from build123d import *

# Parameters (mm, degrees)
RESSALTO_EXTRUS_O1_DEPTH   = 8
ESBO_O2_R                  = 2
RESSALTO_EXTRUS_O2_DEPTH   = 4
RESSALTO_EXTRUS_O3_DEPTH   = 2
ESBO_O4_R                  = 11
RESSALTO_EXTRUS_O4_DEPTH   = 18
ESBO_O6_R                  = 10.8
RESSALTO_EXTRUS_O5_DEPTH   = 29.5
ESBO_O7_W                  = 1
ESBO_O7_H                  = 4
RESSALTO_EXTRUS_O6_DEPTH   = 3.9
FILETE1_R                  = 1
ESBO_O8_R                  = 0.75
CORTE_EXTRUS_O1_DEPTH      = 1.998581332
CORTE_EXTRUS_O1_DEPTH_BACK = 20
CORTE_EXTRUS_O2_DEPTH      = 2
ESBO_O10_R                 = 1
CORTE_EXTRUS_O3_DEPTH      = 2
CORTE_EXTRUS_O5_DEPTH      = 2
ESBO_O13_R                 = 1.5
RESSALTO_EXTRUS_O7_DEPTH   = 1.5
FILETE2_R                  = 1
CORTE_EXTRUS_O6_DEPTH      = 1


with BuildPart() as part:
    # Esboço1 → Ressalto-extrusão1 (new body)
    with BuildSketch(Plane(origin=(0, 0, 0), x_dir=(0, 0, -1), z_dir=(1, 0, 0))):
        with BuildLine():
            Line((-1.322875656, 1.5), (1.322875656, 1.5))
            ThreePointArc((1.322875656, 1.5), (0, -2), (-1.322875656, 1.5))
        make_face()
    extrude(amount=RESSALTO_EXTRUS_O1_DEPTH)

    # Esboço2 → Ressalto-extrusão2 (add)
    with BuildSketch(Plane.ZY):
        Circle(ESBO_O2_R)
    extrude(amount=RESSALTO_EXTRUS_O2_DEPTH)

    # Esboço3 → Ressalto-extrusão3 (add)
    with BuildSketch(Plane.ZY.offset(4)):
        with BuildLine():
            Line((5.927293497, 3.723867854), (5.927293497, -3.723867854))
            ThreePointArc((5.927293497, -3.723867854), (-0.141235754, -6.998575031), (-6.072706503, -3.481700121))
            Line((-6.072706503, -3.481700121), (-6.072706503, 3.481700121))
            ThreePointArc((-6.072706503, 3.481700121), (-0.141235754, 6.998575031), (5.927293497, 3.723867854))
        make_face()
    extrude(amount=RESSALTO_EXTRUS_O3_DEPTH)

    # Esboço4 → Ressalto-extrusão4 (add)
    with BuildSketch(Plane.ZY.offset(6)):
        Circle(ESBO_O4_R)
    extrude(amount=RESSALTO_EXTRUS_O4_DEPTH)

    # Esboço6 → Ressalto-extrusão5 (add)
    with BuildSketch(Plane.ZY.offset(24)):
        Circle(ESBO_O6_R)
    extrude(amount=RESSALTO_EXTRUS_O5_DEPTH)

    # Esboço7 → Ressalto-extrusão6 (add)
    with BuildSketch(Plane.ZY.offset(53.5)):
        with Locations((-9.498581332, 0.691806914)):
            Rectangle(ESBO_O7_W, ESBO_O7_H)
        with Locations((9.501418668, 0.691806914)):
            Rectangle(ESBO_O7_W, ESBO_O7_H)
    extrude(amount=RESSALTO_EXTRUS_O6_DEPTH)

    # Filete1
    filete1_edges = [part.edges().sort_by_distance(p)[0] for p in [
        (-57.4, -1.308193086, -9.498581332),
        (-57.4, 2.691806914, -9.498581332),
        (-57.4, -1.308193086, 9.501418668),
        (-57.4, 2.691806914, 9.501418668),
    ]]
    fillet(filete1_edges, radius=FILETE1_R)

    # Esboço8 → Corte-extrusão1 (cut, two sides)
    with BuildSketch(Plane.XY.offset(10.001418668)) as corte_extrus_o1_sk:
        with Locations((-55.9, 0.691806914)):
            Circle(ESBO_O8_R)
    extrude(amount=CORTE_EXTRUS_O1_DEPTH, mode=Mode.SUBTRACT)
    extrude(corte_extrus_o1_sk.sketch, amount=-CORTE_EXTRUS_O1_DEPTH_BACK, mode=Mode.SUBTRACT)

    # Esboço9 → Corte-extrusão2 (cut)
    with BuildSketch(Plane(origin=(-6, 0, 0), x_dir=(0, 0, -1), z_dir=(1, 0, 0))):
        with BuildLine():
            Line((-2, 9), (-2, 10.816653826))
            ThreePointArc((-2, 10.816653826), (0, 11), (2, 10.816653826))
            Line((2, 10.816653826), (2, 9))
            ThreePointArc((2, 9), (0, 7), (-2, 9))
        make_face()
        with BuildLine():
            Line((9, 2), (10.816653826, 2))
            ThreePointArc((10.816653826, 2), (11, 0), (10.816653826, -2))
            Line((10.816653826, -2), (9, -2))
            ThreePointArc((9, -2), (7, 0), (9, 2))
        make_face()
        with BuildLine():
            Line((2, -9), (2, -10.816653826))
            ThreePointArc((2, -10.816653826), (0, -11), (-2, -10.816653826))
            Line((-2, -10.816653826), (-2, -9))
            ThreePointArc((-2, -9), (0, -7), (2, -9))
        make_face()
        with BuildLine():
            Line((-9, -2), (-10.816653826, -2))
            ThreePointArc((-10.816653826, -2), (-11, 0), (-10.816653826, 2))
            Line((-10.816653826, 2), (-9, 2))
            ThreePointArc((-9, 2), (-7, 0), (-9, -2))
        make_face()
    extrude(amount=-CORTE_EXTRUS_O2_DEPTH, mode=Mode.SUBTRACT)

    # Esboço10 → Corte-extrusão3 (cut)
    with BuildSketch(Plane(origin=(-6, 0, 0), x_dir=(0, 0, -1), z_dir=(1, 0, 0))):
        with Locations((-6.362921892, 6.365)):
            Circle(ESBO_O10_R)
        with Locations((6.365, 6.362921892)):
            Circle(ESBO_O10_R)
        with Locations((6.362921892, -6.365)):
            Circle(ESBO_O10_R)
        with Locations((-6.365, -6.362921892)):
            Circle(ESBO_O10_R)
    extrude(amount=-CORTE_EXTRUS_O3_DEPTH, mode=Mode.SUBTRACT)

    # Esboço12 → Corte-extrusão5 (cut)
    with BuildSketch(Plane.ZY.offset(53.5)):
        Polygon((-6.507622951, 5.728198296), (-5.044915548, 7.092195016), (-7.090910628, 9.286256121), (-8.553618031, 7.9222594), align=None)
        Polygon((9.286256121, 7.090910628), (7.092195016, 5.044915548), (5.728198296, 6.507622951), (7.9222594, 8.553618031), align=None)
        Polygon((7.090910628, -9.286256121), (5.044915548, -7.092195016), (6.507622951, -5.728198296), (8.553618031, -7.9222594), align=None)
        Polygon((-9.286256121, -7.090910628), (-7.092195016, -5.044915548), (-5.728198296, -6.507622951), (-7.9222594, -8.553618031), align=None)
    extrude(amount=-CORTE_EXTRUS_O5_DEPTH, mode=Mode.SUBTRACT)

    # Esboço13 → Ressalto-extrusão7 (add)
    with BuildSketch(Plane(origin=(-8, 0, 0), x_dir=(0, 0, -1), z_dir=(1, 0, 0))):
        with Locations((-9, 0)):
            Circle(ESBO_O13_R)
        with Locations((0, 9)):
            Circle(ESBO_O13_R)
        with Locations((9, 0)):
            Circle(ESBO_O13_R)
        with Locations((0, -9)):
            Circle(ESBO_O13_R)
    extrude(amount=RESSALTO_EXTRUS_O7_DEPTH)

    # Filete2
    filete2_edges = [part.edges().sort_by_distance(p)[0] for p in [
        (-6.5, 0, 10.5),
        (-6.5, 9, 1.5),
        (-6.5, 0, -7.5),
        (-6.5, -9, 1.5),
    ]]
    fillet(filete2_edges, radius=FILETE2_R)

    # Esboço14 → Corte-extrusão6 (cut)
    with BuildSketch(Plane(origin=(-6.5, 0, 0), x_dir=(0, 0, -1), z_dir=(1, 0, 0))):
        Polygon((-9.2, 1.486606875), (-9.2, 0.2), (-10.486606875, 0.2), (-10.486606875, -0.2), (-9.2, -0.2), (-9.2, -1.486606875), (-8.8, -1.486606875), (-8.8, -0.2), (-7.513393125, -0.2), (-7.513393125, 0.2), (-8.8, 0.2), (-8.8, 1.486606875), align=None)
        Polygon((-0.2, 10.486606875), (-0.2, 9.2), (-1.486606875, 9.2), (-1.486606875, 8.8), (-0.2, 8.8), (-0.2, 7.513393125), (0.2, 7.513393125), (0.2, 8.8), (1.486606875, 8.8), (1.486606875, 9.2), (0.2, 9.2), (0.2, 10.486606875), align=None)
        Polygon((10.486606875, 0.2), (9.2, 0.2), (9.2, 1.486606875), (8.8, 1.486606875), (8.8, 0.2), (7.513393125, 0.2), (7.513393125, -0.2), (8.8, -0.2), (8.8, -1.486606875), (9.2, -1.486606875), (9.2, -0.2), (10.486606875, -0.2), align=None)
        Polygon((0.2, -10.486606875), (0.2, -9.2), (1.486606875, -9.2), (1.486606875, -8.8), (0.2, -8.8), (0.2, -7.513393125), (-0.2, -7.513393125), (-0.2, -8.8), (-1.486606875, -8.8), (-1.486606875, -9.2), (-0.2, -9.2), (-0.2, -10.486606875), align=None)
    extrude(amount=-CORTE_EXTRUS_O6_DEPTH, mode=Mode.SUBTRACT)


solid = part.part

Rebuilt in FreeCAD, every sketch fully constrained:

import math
import FreeCAD as App
import Part
import Sketcher
from FreeCAD import Vector
Q = App.Units.Quantity


def edges_at(feature, points):
    """Names of the edges that pass closest to the given points."""
    edges = feature.Shape.Edges
    near = lambda p: min(range(len(edges)), key=lambda i: edges[i].distToShape(Part.Vertex(*p))[0])
    return sorted({f"Edge{near(p) + 1}" for p in points})

doc = App.newDocument("Part")
body = doc.addObject("PartDesign::Body", "Body")

# Sketch on YZ plane
sketch1 = doc.addObject("Sketcher::SketchObject", "Sketch")
body.addObject(sketch1)
sketch1.AttachmentSupport = (doc.YZ_Plane, [""])
sketch1.MapMode = "FlatFace"
sketch1.addGeometry([
    Part.LineSegment(Vector(1.5, -1.3, 0), Vector(1.5, 1.3, 0)),
    Part.ArcOfCircle(Part.Circle(Vector(0, 0, 0), Vector(0, 0, 1), 2), math.radians(41), math.radians(319)),
], False)
sketch1.addConstraint([
    Sketcher.Constraint("Coincident", 0, 1, 1, 2),
    Sketcher.Constraint("Coincident", 1, 1, 0, 2),
    Sketcher.Constraint("Vertical", 0),
    Sketcher.Constraint("Coincident", 1, 3, -1, 1),
    Sketcher.Constraint("Radius", 1, Q("2 mm")),
    Sketcher.Constraint("DistanceX", -1, 1, 0, 1, Q("1.5 mm")),
])
pad1 = doc.addObject("PartDesign::Pad", "Pad")
body.addObject(pad1)
pad1.Profile = sketch1
pad1.Length = 8

# Sketch on YZ plane
sketch2 = doc.addObject("Sketcher::SketchObject", "Sketch001")
body.addObject(sketch2)
sketch2.AttachmentSupport = (doc.YZ_Plane, [""])
sketch2.MapMode = "FlatFace"
sketch2.addGeometry(Part.Circle(Vector(0, 0, 0), Vector(0, 0, 1), 2), False)
sketch2.addConstraint([
    Sketcher.Constraint("Coincident", 0, 3, -1, 1),
    Sketcher.Constraint("Diameter", 0, Q("4 mm")),
])
pad2 = doc.addObject("PartDesign::Pad", "Pad001")
body.addObject(pad2)
pad2.Profile = sketch2
pad2.Length = 4
pad2.Reversed = True

# Sketch on YZ plane
sketch3 = doc.addObject("Sketcher::SketchObject", "Sketch002")
body.addObject(sketch3)
sketch3.AttachmentSupport = (doc.YZ_Plane, [""])
sketch3.MapMode = "FlatFace"
sketch3.AttachmentOffset = App.Placement(Vector(0, 0, -4), App.Rotation())
sketch3.addGeometry([
    Part.LineSegment(Vector(-4, 6, 0), Vector(4, 6, 0)),
    Part.ArcOfCircle(Part.Circle(Vector(0, 0, 0), Vector(0, 0, 1), 7), math.radians(-60), math.radians(58)),
    Part.LineSegment(Vector(3, -6, 0), Vector(-3, -6, 0)),
    Part.ArcOfCircle(Part.Circle(Vector(0, 0, 0), Vector(0, 0, 1), 7), math.radians(122), math.radians(240)),
], False)
sketch3.addConstraint([
    Sketcher.Constraint("Coincident", 0, 2, 1, 2),
    Sketcher.Constraint("Coincident", 1, 1, 2, 1),
    Sketcher.Constraint("Coincident", 2, 2, 3, 2),
    Sketcher.Constraint("Coincident", 3, 1, 0, 1),
    Sketcher.Constraint("Horizontal", 0),
    Sketcher.Constraint("Horizontal", 2),
    Sketcher.Constraint("Coincident", 1, 3, -1, 1),
    Sketcher.Constraint("Coincident", 3, 3, -1, 1),
    Sketcher.Constraint("Equal", 1, 3),
    Sketcher.Constraint("Radius", 1, Q("7 mm")),
    Sketcher.Constraint("DistanceY", 1, 1, 0, 2, Q("12 mm")),
    Sketcher.Constraint("DistanceX", 2, 2, 2, 1, Q("6.9634 mm")),
])
pad3 = doc.addObject("PartDesign::Pad", "Pad002")
body.addObject(pad3)
pad3.Profile = sketch3
pad3.Length = 2
pad3.Reversed = True

# Sketch on YZ plane
sketch4 = doc.addObject("Sketcher::SketchObject", "Sketch003")
body.addObject(sketch4)
sketch4.AttachmentSupport = (doc.YZ_Plane, [""])
sketch4.MapMode = "FlatFace"
sketch4.AttachmentOffset = App.Placement(Vector(0, 0, -6), App.Rotation())
sketch4.addGeometry(Part.Circle(Vector(0, 0, 0), Vector(0, 0, 1), 11), False)
sketch4.addConstraint([
    Sketcher.Constraint("Coincident", 0, 3, -1, 1),
    Sketcher.Constraint("Diameter", 0, Q("22 mm")),
])
pad4 = doc.addObject("PartDesign::Pad", "Pad003")
body.addObject(pad4)
pad4.Profile = sketch4
pad4.Length = 18
pad4.Reversed = True

# Sketch on YZ plane
sketch5 = doc.addObject("Sketcher::SketchObject", "Sketch004")
body.addObject(sketch5)
sketch5.AttachmentSupport = (doc.YZ_Plane, [""])
sketch5.MapMode = "FlatFace"
sketch5.AttachmentOffset = App.Placement(Vector(0, 0, -24), App.Rotation())
sketch5.addGeometry(Part.Circle(Vector(0, 0, 0), Vector(0, 0, 1), 11), False)
sketch5.addConstraint([
    Sketcher.Constraint("Coincident", 0, 3, -1, 1),
    Sketcher.Constraint("Diameter", 0, Q("21.6 mm")),
])
pad5 = doc.addObject("PartDesign::Pad", "Pad004")
body.addObject(pad5)
pad5.Profile = sketch5
pad5.Length = 29.5
pad5.Reversed = True

# Sketch on YZ plane
sketch6 = doc.addObject("Sketcher::SketchObject", "Sketch005")
body.addObject(sketch6)
sketch6.AttachmentSupport = (doc.YZ_Plane, [""])
sketch6.MapMode = "FlatFace"
sketch6.AttachmentOffset = App.Placement(Vector(0, 0, -53.5), App.Rotation())
sketch6.addGeometry([
    Part.LineSegment(Vector(2.7, -10, 0), Vector(-1.3, -10, 0)),  # 0
    Part.LineSegment(Vector(-1.3, -10, 0), Vector(-1.3, -9, 0)),  # 1
    Part.LineSegment(Vector(-1.3, -9, 0), Vector(2.7, -9, 0)),  # 2
    Part.LineSegment(Vector(2.7, -9, 0), Vector(2.7, -10, 0)),  # 3
    Part.LineSegment(Vector(2.7, 9, 0), Vector(-1.3, 9, 0)),  # 4
    Part.LineSegment(Vector(-1.3, 9, 0), Vector(-1.3, 10, 0)),  # 5
    Part.LineSegment(Vector(-1.3, 10, 0), Vector(2.7, 10, 0)),  # 6
    Part.LineSegment(Vector(2.7, 10, 0), Vector(2.7, 9, 0)),  # 7
], False)
sketch6.addConstraint([
    Sketcher.Constraint("Coincident", 0, 2, 1, 1),
    Sketcher.Constraint("Coincident", 1, 2, 2, 1),
    Sketcher.Constraint("Coincident", 2, 2, 3, 1),
    Sketcher.Constraint("Coincident", 3, 2, 0, 1),
    Sketcher.Constraint("Coincident", 4, 2, 5, 1),
    Sketcher.Constraint("Coincident", 5, 2, 6, 1),
    Sketcher.Constraint("Coincident", 6, 2, 7, 1),
    Sketcher.Constraint("Coincident", 7, 2, 4, 1),
    Sketcher.Constraint("Horizontal", 0),
    Sketcher.Constraint("Vertical", 1),
    Sketcher.Constraint("Horizontal", 2),
    Sketcher.Constraint("Vertical", 3),
    Sketcher.Constraint("Horizontal", 4),
    Sketcher.Constraint("Vertical", 5),
    Sketcher.Constraint("Horizontal", 6),
    Sketcher.Constraint("Vertical", 7),
    Sketcher.Constraint("Vertical", 1, 2, 4, 2),
    Sketcher.Constraint("Vertical", 3, 2, 6, 2),
    Sketcher.Constraint("Equal", 3, 5),
    Sketcher.Constraint("DistanceX", 0, 2, 0, 1, Q("4 mm")),
    Sketcher.Constraint("DistanceY", 1, 1, 1, 2, Q("1 mm")),
    Sketcher.Constraint("DistanceY", 1, 2, 4, 2, Q("18 mm")),
    Sketcher.Constraint("DistanceY", 0, 2, -1, 1, Q("9.998581 mm")),
    Sketcher.Constraint("DistanceX", 0, 2, -1, 1, Q("1.308193 mm")),
])
pad6 = doc.addObject("PartDesign::Pad", "Pad005")
body.addObject(pad6)
pad6.Profile = sketch6
pad6.Length = 3.9
pad6.Reversed = True
doc.recompute()

fillet = doc.addObject("PartDesign::Fillet", "Fillet")
body.addObject(fillet)
fillet.Base = (pad6, edges_at(pad6, [
    (-57.4, -1.308, -9.499),
    (-57.4, 2.692, -9.499),
    (-57.4, -1.308, 9.501),
    (-57.4, 2.692, 9.501),
]))
fillet.Radius = 1

# Sketch on XY plane
sketch7 = doc.addObject("Sketcher::SketchObject", "Sketch006")
body.addObject(sketch7)
sketch7.AttachmentSupport = (doc.XY_Plane, [""])
sketch7.MapMode = "FlatFace"
sketch7.AttachmentOffset = App.Placement(Vector(0, 0, 10.001419), App.Rotation())
sketch7.addGeometry(Part.Circle(Vector(-55.9, 0.7, 0), Vector(0, 0, 1), 0.8), False)
sketch7.addConstraint([
    Sketcher.Constraint("Diameter", 0, Q("1.5 mm")),
    Sketcher.Constraint("DistanceX", 0, 3, -1, 1, Q("55.9 mm")),
    Sketcher.Constraint("DistanceY", -1, 1, 0, 3, Q("0.691807 mm")),
])
pocket1 = doc.addObject("PartDesign::Pocket", "Pocket")
body.addObject(pocket1)
pocket1.Profile = sketch7
pocket1.Type = "ThroughAll"
pocket1.Midplane = True

# Sketch on YZ plane
sketch8 = doc.addObject("Sketcher::SketchObject", "Sketch007")
body.addObject(sketch8)
sketch8.AttachmentSupport = (doc.YZ_Plane, [""])
sketch8.MapMode = "FlatFace"
sketch8.AttachmentOffset = App.Placement(Vector(0, 0, -6), App.Rotation())
sketch8.addGeometry([
    Part.LineSegment(Vector(10.8, 2, 0), Vector(9, 2, 0)),  # 0
    Part.ArcOfCircle(Part.Circle(Vector(9, 0, 0), Vector(0, 0, 1), 2), math.radians(90), math.radians(270)),  # 1
    Part.LineSegment(Vector(9, -2, 0), Vector(10.8, -2, 0)),  # 2
    Part.ArcOfCircle(Part.Circle(Vector(0, 0, 0), Vector(0, 0, 1), 11), math.radians(-10), math.radians(10)),  # 3
    Part.LineSegment(Vector(2, -10.8, 0), Vector(2, -9, 0)),  # 4
    Part.ArcOfCircle(Part.Circle(Vector(0, -9, 0), Vector(0, 0, 1), 2), math.radians(0), math.radians(180)),  # 5
    Part.LineSegment(Vector(-2, -9, 0), Vector(-2, -10.8, 0)),  # 6
    Part.ArcOfCircle(Part.Circle(Vector(0, 0, 0), Vector(0, 0, 1), 11), math.radians(-100), math.radians(-80)),  # 7
    Part.LineSegment(Vector(-10.8, -2, 0), Vector(-9, -2, 0)),  # 8
    Part.ArcOfCircle(Part.Circle(Vector(-9, 0, 0), Vector(0, 0, 1), 2), math.radians(-90), math.radians(90)),  # 9
    Part.LineSegment(Vector(-9, 2, 0), Vector(-10.8, 2, 0)),  # 10
    Part.ArcOfCircle(Part.Circle(Vector(0, 0, 0), Vector(0, 0, 1), 11), math.radians(170), math.radians(190)),  # 11
    Part.LineSegment(Vector(-2, 10.8, 0), Vector(-2, 9, 0)),  # 12
    Part.ArcOfCircle(Part.Circle(Vector(0, 9, 0), Vector(0, 0, 1), 2), math.radians(180), math.radians(360)),  # 13
    Part.LineSegment(Vector(2, 9, 0), Vector(2, 10.8, 0)),  # 14
    Part.ArcOfCircle(Part.Circle(Vector(0, 0, 0), Vector(0, 0, 1), 11), math.radians(80), math.radians(100)),  # 15
], False)
sketch8.addConstraint([
    Sketcher.Constraint("Tangent", 0, 2, 1, 1),
    Sketcher.Constraint("Tangent", 1, 2, 2, 1),
    Sketcher.Constraint("Coincident", 2, 2, 3, 1),
    Sketcher.Constraint("Coincident", 3, 2, 0, 1),
    Sketcher.Constraint("Tangent", 4, 2, 5, 1),
    Sketcher.Constraint("Tangent", 5, 2, 6, 1),
    Sketcher.Constraint("Coincident", 6, 2, 7, 1),
    Sketcher.Constraint("Coincident", 7, 2, 4, 1),
    Sketcher.Constraint("Tangent", 8, 2, 9, 1),
    Sketcher.Constraint("Tangent", 9, 2, 10, 1),
    Sketcher.Constraint("Coincident", 10, 2, 11, 1),
    Sketcher.Constraint("Coincident", 11, 2, 8, 1),
    Sketcher.Constraint("Tangent", 12, 2, 13, 1),
    Sketcher.Constraint("Tangent", 13, 2, 14, 1),
    Sketcher.Constraint("Coincident", 14, 2, 15, 1),
    Sketcher.Constraint("Coincident", 15, 2, 12, 1),
    Sketcher.Constraint("Horizontal", 0),
    Sketcher.Constraint("Horizontal", 2),
    Sketcher.Constraint("Vertical", 4),
    Sketcher.Constraint("Vertical", 6),
    Sketcher.Constraint("Horizontal", 8),
    Sketcher.Constraint("Horizontal", 10),
    Sketcher.Constraint("Vertical", 12),
    Sketcher.Constraint("Vertical", 14),
    Sketcher.Constraint("Coincident", 3, 3, -1, 1),
    Sketcher.Constraint("Coincident", 7, 3, -1, 1),
    Sketcher.Constraint("Coincident", 11, 3, -1, 1),
    Sketcher.Constraint("Coincident", 15, 3, -1, 1),
    Sketcher.Constraint("Equal", 1, 5),
    Sketcher.Constraint("Equal", 3, 7),
    Sketcher.Constraint("Equal", 5, 9),
    Sketcher.Constraint("Equal", 7, 11),
    Sketcher.Constraint("Equal", 9, 13),
    Sketcher.Constraint("Equal", 11, 15),
    Sketcher.Constraint("Symmetric", 1, 3, 9, 3, -1, 1),
    Sketcher.Constraint("Symmetric", 5, 3, 13, 3, -1, 1),
    Sketcher.Constraint("PointOnObject", 1, 3, -1),
    Sketcher.Constraint("PointOnObject", 5, 3, -2),
    Sketcher.Constraint("Equal", 10, 4),
    Sketcher.Constraint("Radius", 1, Q("2 mm")),
    Sketcher.Constraint("Radius", 3, Q("11 mm")),
    Sketcher.Constraint("DistanceX", -1, 1, 1, 3, Q("9 mm")),
])
pocket2 = doc.addObject("PartDesign::Pocket", "Pocket001")
body.addObject(pocket2)
pocket2.Profile = sketch8
pocket2.Length = 2

# Sketch on YZ plane
sketch9 = doc.addObject("Sketcher::SketchObject", "Sketch008")
body.addObject(sketch9)
sketch9.AttachmentSupport = (doc.YZ_Plane, [""])
sketch9.MapMode = "FlatFace"
sketch9.AttachmentOffset = App.Placement(Vector(0, 0, -6), App.Rotation())
sketch9.addGeometry([
    Part.Circle(Vector(6.4, 6.4, 0), Vector(0, 0, 1), 1),
    Part.Circle(Vector(6.4, -6.4, 0), Vector(0, 0, 1), 1),
    Part.Circle(Vector(-6.4, -6.4, 0), Vector(0, 0, 1), 1),
    Part.Circle(Vector(-6.4, 6.4, 0), Vector(0, 0, 1), 1),
], False)
sketch9.addConstraint([
    Sketcher.Constraint("Equal", 0, 1),
    Sketcher.Constraint("Equal", 1, 2),
    Sketcher.Constraint("Equal", 2, 3),
    Sketcher.Constraint("Symmetric", 0, 3, 2, 3, -1, 1),
    Sketcher.Constraint("Symmetric", 1, 3, 3, 3, -1, 1),
    Sketcher.Constraint("Diameter", 0, Q("2 mm")),
    Sketcher.Constraint("DistanceX", 2, 3, 0, 3, Q("12.73 mm")),
    Sketcher.Constraint("DistanceY", 1, 3, 3, 3, Q("12.73 mm")),
    Sketcher.Constraint("DistanceY", -1, 1, 0, 3, Q("6.362922 mm")),
    Sketcher.Constraint("DistanceX", -1, 1, 1, 3, Q("6.362922 mm")),
])
pocket3 = doc.addObject("PartDesign::Pocket", "Pocket002")
body.addObject(pocket3)
pocket3.Profile = sketch9
pocket3.Length = 2

# Sketch on YZ plane
sketch10 = doc.addObject("Sketcher::SketchObject", "Sketch009")
body.addObject(sketch10)
sketch10.AttachmentSupport = (doc.YZ_Plane, [""])
sketch10.MapMode = "FlatFace"
sketch10.AttachmentOffset = App.Placement(Vector(0, 0, -53.5), App.Rotation())
sketch10.addGeometry([
    Part.LineSegment(Vector(5.7, -6.5, 0), Vector(7.1, -5, 0)),  # 0
    Part.LineSegment(Vector(7.1, -5, 0), Vector(9.3, -7.1, 0)),  # 1
    Part.LineSegment(Vector(9.3, -7.1, 0), Vector(7.9, -8.6, 0)),  # 2
    Part.LineSegment(Vector(7.9, -8.6, 0), Vector(5.7, -6.5, 0)),  # 3
    Part.LineSegment(Vector(5, 7.1, 0), Vector(7.1, 9.3, 0)),  # 4
    Part.LineSegment(Vector(7.1, 9.3, 0), Vector(8.6, 7.9, 0)),  # 5
    Part.LineSegment(Vector(8.6, 7.9, 0), Vector(6.5, 5.7, 0)),  # 6
    Part.LineSegment(Vector(6.5, 5.7, 0), Vector(5, 7.1, 0)),  # 7
    Part.LineSegment(Vector(-7.1, 5, 0), Vector(-9.3, 7.1, 0)),  # 8
    Part.LineSegment(Vector(-9.3, 7.1, 0), Vector(-7.9, 8.6, 0)),  # 9
    Part.LineSegment(Vector(-7.9, 8.6, 0), Vector(-5.7, 6.5, 0)),  # 10
    Part.LineSegment(Vector(-5.7, 6.5, 0), Vector(-7.1, 5, 0)),  # 11
    Part.LineSegment(Vector(-5, -7.1, 0), Vector(-7.1, -9.3, 0)),  # 12
    Part.LineSegment(Vector(-7.1, -9.3, 0), Vector(-8.6, -7.9, 0)),  # 13
    Part.LineSegment(Vector(-8.6, -7.9, 0), Vector(-6.5, -5.7, 0)),  # 14
    Part.LineSegment(Vector(-6.5, -5.7, 0), Vector(-5, -7.1, 0)),  # 15
], False)
sketch10.addConstraint([
    Sketcher.Constraint("Coincident", 0, 2, 1, 1),
    Sketcher.Constraint("Coincident", 1, 2, 2, 1),
    Sketcher.Constraint("Coincident", 2, 2, 3, 1),
    Sketcher.Constraint("Coincident", 3, 2, 0, 1),
    Sketcher.Constraint("Coincident", 4, 2, 5, 1),
    Sketcher.Constraint("Coincident", 5, 2, 6, 1),
    Sketcher.Constraint("Coincident", 6, 2, 7, 1),
    Sketcher.Constraint("Coincident", 7, 2, 4, 1),
    Sketcher.Constraint("Coincident", 8, 2, 9, 1),
    Sketcher.Constraint("Coincident", 9, 2, 10, 1),
    Sketcher.Constraint("Coincident", 10, 2, 11, 1),
    Sketcher.Constraint("Coincident", 11, 2, 8, 1),
    Sketcher.Constraint("Coincident", 12, 2, 13, 1),
    Sketcher.Constraint("Coincident", 13, 2, 14, 1),
    Sketcher.Constraint("Coincident", 14, 2, 15, 1),
    Sketcher.Constraint("Coincident", 15, 2, 12, 1),
    Sketcher.Constraint("Symmetric", 1, 2, 8, 2, -1, 1),
    Sketcher.Constraint("Symmetric", 2, 2, 9, 2, -1, 1),
    Sketcher.Constraint("Symmetric", 3, 2, 10, 2, -1, 1),
    Sketcher.Constraint("Symmetric", 0, 2, 11, 2, -1, 1),
    Sketcher.Constraint("Symmetric", 4, 2, 12, 2, -1, 1),
    Sketcher.Constraint("Symmetric", 5, 2, 13, 2, -1, 1),
    Sketcher.Constraint("Symmetric", 6, 2, 14, 2, -1, 1),
    Sketcher.Constraint("Symmetric", 7, 2, 15, 2, -1, 1),
    Sketcher.Constraint("Perpendicular", 0, 1),
    Sketcher.Constraint("Perpendicular", 1, 2),
    Sketcher.Constraint("Perpendicular", 2, 3),
    Sketcher.Constraint("Perpendicular", 3, 4),
    Sketcher.Constraint("Perpendicular", 4, 5),
    Sketcher.Constraint("Perpendicular", 5, 6),
    Sketcher.Constraint("Perpendicular", 6, 7),
    Sketcher.Constraint("Equal", 3, 4),
    Sketcher.Constraint("Equal", 2, 5),
    Sketcher.Constraint("Angle", 0, Q("47 deg")),
    Sketcher.Constraint("Distance", 0, Q("2 mm")),
    Sketcher.Constraint("Distance", 1, Q("3 mm")),
    Sketcher.Constraint("DistanceX", -1, 1, 3, 2, Q("5.728198 mm")),
    Sketcher.Constraint("DistanceY", -1, 1, 6, 2, Q("5.728198 mm")),
    Sketcher.Constraint("DistanceY", 1, 2, -1, 1, Q("7.090911 mm")),
    Sketcher.Constraint("DistanceX", -1, 1, 4, 2, Q("7.090911 mm")),
])
pocket4 = doc.addObject("PartDesign::Pocket", "Pocket003")
body.addObject(pocket4)
pocket4.Profile = sketch10
pocket4.Length = 2
pocket4.Reversed = True

# Sketch on YZ plane
sketch11 = doc.addObject("Sketcher::SketchObject", "Sketch010")
body.addObject(sketch11)
sketch11.AttachmentSupport = (doc.YZ_Plane, [""])
sketch11.MapMode = "FlatFace"
sketch11.AttachmentOffset = App.Placement(Vector(0, 0, -8), App.Rotation())
sketch11.addGeometry([
    Part.Circle(Vector(0, 9, 0), Vector(0, 0, 1), 1.5),
    Part.Circle(Vector(9, 0, 0), Vector(0, 0, 1), 1.5),
    Part.Circle(Vector(0, -9, 0), Vector(0, 0, 1), 1.5),
    Part.Circle(Vector(-9, 0, 0), Vector(0, 0, 1), 1.5),
], False)
sketch11.addConstraint([
    Sketcher.Constraint("Equal", 0, 1),
    Sketcher.Constraint("Equal", 1, 2),
    Sketcher.Constraint("Equal", 2, 3),
    Sketcher.Constraint("Symmetric", 0, 3, 2, 3, -1, 1),
    Sketcher.Constraint("Symmetric", 1, 3, 3, 3, -1, 1),
    Sketcher.Constraint("PointOnObject", 0, 3, -2),
    Sketcher.Constraint("PointOnObject", 1, 3, -1),
    Sketcher.Constraint("Diameter", 0, Q("3 mm")),
    Sketcher.Constraint("DistanceY", -1, 1, 0, 3, Q("9 mm")),
    Sketcher.Constraint("DistanceX", -1, 1, 1, 3, Q("9 mm")),
])
pad7 = doc.addObject("PartDesign::Pad", "Pad006")
body.addObject(pad7)
pad7.Profile = sketch11
pad7.Length = 1.5
doc.recompute()

fillet2 = doc.addObject("PartDesign::Fillet", "Fillet001")
body.addObject(fillet2)
fillet2.Base = (pad7, edges_at(pad7, [
    (-6.5, 0, 10.5),
    (-6.5, 9, 1.5),
    (-6.5, 0, -7.5),
    (-6.5, -9, 1.5),
]))
fillet2.Radius = 1

# Sketch on YZ plane
sketch12 = doc.addObject("Sketcher::SketchObject", "Sketch011")
body.addObject(sketch12)
sketch12.AttachmentSupport = (doc.YZ_Plane, [""])
sketch12.MapMode = "FlatFace"
sketch12.AttachmentOffset = App.Placement(Vector(0, 0, -6.5), App.Rotation())
sketch12.addGeometry([
    Part.LineSegment(Vector(1.49, 9.2, 0), Vector(0.2, 9.2, 0)),  # 0
    Part.LineSegment(Vector(0.2, 9.2, 0), Vector(0.2, 10.49, 0)),  # 1
    Part.LineSegment(Vector(0.2, 10.49, 0), Vector(-0.2, 10.49, 0)),  # 2
    Part.LineSegment(Vector(-0.2, 10.49, 0), Vector(-0.2, 9.2, 0)),  # 3
    Part.LineSegment(Vector(-0.2, 9.2, 0), Vector(-1.49, 9.2, 0)),  # 4
    Part.LineSegment(Vector(-1.49, 9.2, 0), Vector(-1.49, 8.8, 0)),  # 5
    Part.LineSegment(Vector(-1.49, 8.8, 0), Vector(-0.2, 8.8, 0)),  # 6
    Part.LineSegment(Vector(-0.2, 8.8, 0), Vector(-0.2, 7.51, 0)),  # 7
    Part.LineSegment(Vector(-0.2, 7.51, 0), Vector(0.2, 7.51, 0)),  # 8
    Part.LineSegment(Vector(0.2, 7.51, 0), Vector(0.2, 8.8, 0)),  # 9
    Part.LineSegment(Vector(0.2, 8.8, 0), Vector(1.49, 8.8, 0)),  # 10
    Part.LineSegment(Vector(1.49, 8.8, 0), Vector(1.49, 9.2, 0)),  # 11
    Part.LineSegment(Vector(10.49, 0.2, 0), Vector(9.2, 0.2, 0)),  # 12
    Part.LineSegment(Vector(9.2, 0.2, 0), Vector(9.2, 1.49, 0)),  # 13
    Part.LineSegment(Vector(9.2, 1.49, 0), Vector(8.8, 1.49, 0)),  # 14
    Part.LineSegment(Vector(8.8, 1.49, 0), Vector(8.8, 0.2, 0)),  # 15
    Part.LineSegment(Vector(8.8, 0.2, 0), Vector(7.51, 0.2, 0)),  # 16
    Part.LineSegment(Vector(7.51, 0.2, 0), Vector(7.51, -0.2, 0)),  # 17
    Part.LineSegment(Vector(7.51, -0.2, 0), Vector(8.8, -0.2, 0)),  # 18
    Part.LineSegment(Vector(8.8, -0.2, 0), Vector(8.8, -1.49, 0)),  # 19
    Part.LineSegment(Vector(8.8, -1.49, 0), Vector(9.2, -1.49, 0)),  # 20
    Part.LineSegment(Vector(9.2, -1.49, 0), Vector(9.2, -0.2, 0)),  # 21
    Part.LineSegment(Vector(9.2, -0.2, 0), Vector(10.49, -0.2, 0)),  # 22
    Part.LineSegment(Vector(10.49, -0.2, 0), Vector(10.49, 0.2, 0)),  # 23
    Part.LineSegment(Vector(0.2, -10.49, 0), Vector(0.2, -9.2, 0)),  # 24
    Part.LineSegment(Vector(0.2, -9.2, 0), Vector(1.49, -9.2, 0)),  # 25
    Part.LineSegment(Vector(1.49, -9.2, 0), Vector(1.49, -8.8, 0)),  # 26
    Part.LineSegment(Vector(1.49, -8.8, 0), Vector(0.2, -8.8, 0)),  # 27
    Part.LineSegment(Vector(0.2, -8.8, 0), Vector(0.2, -7.51, 0)),  # 28
    Part.LineSegment(Vector(0.2, -7.51, 0), Vector(-0.2, -7.51, 0)),  # 29
    Part.LineSegment(Vector(-0.2, -7.51, 0), Vector(-0.2, -8.8, 0)),  # 30
    Part.LineSegment(Vector(-0.2, -8.8, 0), Vector(-1.49, -8.8, 0)),  # 31
    Part.LineSegment(Vector(-1.49, -8.8, 0), Vector(-1.49, -9.2, 0)),  # 32
    Part.LineSegment(Vector(-1.49, -9.2, 0), Vector(-0.2, -9.2, 0)),  # 33
    Part.LineSegment(Vector(-0.2, -9.2, 0), Vector(-0.2, -10.49, 0)),  # 34
    Part.LineSegment(Vector(-0.2, -10.49, 0), Vector(0.2, -10.49, 0)),  # 35
    Part.LineSegment(Vector(-10.49, -0.2, 0), Vector(-9.2, -0.2, 0)),  # 36
    Part.LineSegment(Vector(-9.2, -0.2, 0), Vector(-9.2, -1.49, 0)),  # 37
    Part.LineSegment(Vector(-9.2, -1.49, 0), Vector(-8.8, -1.49, 0)),  # 38
    Part.LineSegment(Vector(-8.8, -1.49, 0), Vector(-8.8, -0.2, 0)),  # 39
    Part.LineSegment(Vector(-8.8, -0.2, 0), Vector(-7.51, -0.2, 0)),  # 40
    Part.LineSegment(Vector(-7.51, -0.2, 0), Vector(-7.51, 0.2, 0)),  # 41
    Part.LineSegment(Vector(-7.51, 0.2, 0), Vector(-8.8, 0.2, 0)),  # 42
    Part.LineSegment(Vector(-8.8, 0.2, 0), Vector(-8.8, 1.49, 0)),  # 43
    Part.LineSegment(Vector(-8.8, 1.49, 0), Vector(-9.2, 1.49, 0)),  # 44
    Part.LineSegment(Vector(-9.2, 1.49, 0), Vector(-9.2, 0.2, 0)),  # 45
    Part.LineSegment(Vector(-9.2, 0.2, 0), Vector(-10.49, 0.2, 0)),  # 46
    Part.LineSegment(Vector(-10.49, 0.2, 0), Vector(-10.49, -0.2, 0)),  # 47
], False)
sketch12.addConstraint([
    Sketcher.Constraint("Coincident", 0, 2, 1, 1),
    Sketcher.Constraint("Coincident", 1, 2, 2, 1),
    Sketcher.Constraint("Coincident", 2, 2, 3, 1),
    Sketcher.Constraint("Coincident", 3, 2, 4, 1),
    Sketcher.Constraint("Coincident", 4, 2, 5, 1),
    Sketcher.Constraint("Coincident", 5, 2, 6, 1),
    Sketcher.Constraint("Coincident", 6, 2, 7, 1),
    Sketcher.Constraint("Coincident", 7, 2, 8, 1),
    Sketcher.Constraint("Coincident", 8, 2, 9, 1),
    Sketcher.Constraint("Coincident", 9, 2, 10, 1),
    Sketcher.Constraint("Coincident", 10, 2, 11, 1),
    Sketcher.Constraint("Coincident", 11, 2, 0, 1),
    Sketcher.Constraint("Coincident", 12, 2, 13, 1),
    Sketcher.Constraint("Coincident", 13, 2, 14, 1),
    Sketcher.Constraint("Coincident", 14, 2, 15, 1),
    Sketcher.Constraint("Coincident", 15, 2, 16, 1),
    Sketcher.Constraint("Coincident", 16, 2, 17, 1),
    Sketcher.Constraint("Coincident", 17, 2, 18, 1),
    Sketcher.Constraint("Coincident", 18, 2, 19, 1),
    Sketcher.Constraint("Coincident", 19, 2, 20, 1),
    Sketcher.Constraint("Coincident", 20, 2, 21, 1),
    Sketcher.Constraint("Coincident", 21, 2, 22, 1),
    Sketcher.Constraint("Coincident", 22, 2, 23, 1),
    Sketcher.Constraint("Coincident", 23, 2, 12, 1),
    Sketcher.Constraint("Coincident", 24, 2, 25, 1),
    Sketcher.Constraint("Coincident", 25, 2, 26, 1),
    Sketcher.Constraint("Coincident", 26, 2, 27, 1),
    Sketcher.Constraint("Coincident", 27, 2, 28, 1),
    Sketcher.Constraint("Coincident", 28, 2, 29, 1),
    Sketcher.Constraint("Coincident", 29, 2, 30, 1),
    Sketcher.Constraint("Coincident", 30, 2, 31, 1),
    Sketcher.Constraint("Coincident", 31, 2, 32, 1),
    Sketcher.Constraint("Coincident", 32, 2, 33, 1),
    Sketcher.Constraint("Coincident", 33, 2, 34, 1),
    Sketcher.Constraint("Coincident", 34, 2, 35, 1),
    Sketcher.Constraint("Coincident", 35, 2, 24, 1),
    Sketcher.Constraint("Coincident", 36, 2, 37, 1),
    Sketcher.Constraint("Coincident", 37, 2, 38, 1),
    Sketcher.Constraint("Coincident", 38, 2, 39, 1),
    Sketcher.Constraint("Coincident", 39, 2, 40, 1),
    Sketcher.Constraint("Coincident", 40, 2, 41, 1),
    Sketcher.Constraint("Coincident", 41, 2, 42, 1),
    Sketcher.Constraint("Coincident", 42, 2, 43, 1),
    Sketcher.Constraint("Coincident", 43, 2, 44, 1),
    Sketcher.Constraint("Coincident", 44, 2, 45, 1),
    Sketcher.Constraint("Coincident", 45, 2, 46, 1),
    Sketcher.Constraint("Coincident", 46, 2, 47, 1),
    Sketcher.Constraint("Coincident", 47, 2, 36, 1),
    Sketcher.Constraint("Horizontal", 0),
    Sketcher.Constraint("Vertical", 1),
    Sketcher.Constraint("Horizontal", 2),
    Sketcher.Constraint("Vertical", 3),
    Sketcher.Constraint("Horizontal", 4),
    Sketcher.Constraint("Vertical", 5),
    Sketcher.Constraint("Horizontal", 6),
    Sketcher.Constraint("Vertical", 7),
    Sketcher.Constraint("Horizontal", 8),
    Sketcher.Constraint("Vertical", 9),
    Sketcher.Constraint("Horizontal", 10),
    Sketcher.Constraint("Vertical", 11),
    Sketcher.Constraint("Horizontal", 12),
    Sketcher.Constraint("Vertical", 13),
    Sketcher.Constraint("Horizontal", 14),
    Sketcher.Constraint("Vertical", 15),
    Sketcher.Constraint("Horizontal", 16),
    Sketcher.Constraint("Vertical", 17),
    Sketcher.Constraint("Horizontal", 18),
    Sketcher.Constraint("Vertical", 19),
    Sketcher.Constraint("Horizontal", 20),
    Sketcher.Constraint("Vertical", 21),
    Sketcher.Constraint("Horizontal", 22),
    Sketcher.Constraint("Vertical", 23),
    Sketcher.Constraint("Vertical", 24),
    Sketcher.Constraint("Horizontal", 25),
    Sketcher.Constraint("Vertical", 26),
    Sketcher.Constraint("Horizontal", 27),
    Sketcher.Constraint("Vertical", 28),
    Sketcher.Constraint("Horizontal", 29),
    Sketcher.Constraint("Vertical", 30),
    Sketcher.Constraint("Horizontal", 31),
    Sketcher.Constraint("Vertical", 32),
    Sketcher.Constraint("Horizontal", 33),
    Sketcher.Constraint("Vertical", 34),
    Sketcher.Constraint("Horizontal", 35),
    Sketcher.Constraint("Horizontal", 36),
    Sketcher.Constraint("Vertical", 37),
    Sketcher.Constraint("Horizontal", 38),
    Sketcher.Constraint("Vertical", 39),
    Sketcher.Constraint("Horizontal", 40),
    Sketcher.Constraint("Vertical", 41),
    Sketcher.Constraint("Horizontal", 42),
    Sketcher.Constraint("Vertical", 43),
    Sketcher.Constraint("Horizontal", 44),
    Sketcher.Constraint("Vertical", 45),
    Sketcher.Constraint("Horizontal", 46),
    Sketcher.Constraint("Vertical", 47),
    Sketcher.Constraint("Symmetric", 3, 2, 24, 2, -1, 1),
    Sketcher.Constraint("Symmetric", 5, 2, 26, 2, -1, 1),
    Sketcher.Constraint("Symmetric", 7, 2, 28, 2, -1, 1),
    Sketcher.Constraint("Symmetric", 9, 2, 30, 2, -1, 1),
    Sketcher.Constraint("Symmetric", 11, 2, 32, 2, -1, 1),
    Sketcher.Constraint("Symmetric", 1, 2, 34, 2, -1, 1),
    Sketcher.Constraint("Symmetric", 12, 2, 36, 2, -1, 1),
    Sketcher.Constraint("Symmetric", 14, 2, 38, 2, -1, 1),
    Sketcher.Constraint("Symmetric", 16, 2, 40, 2, -1, 1),
    Sketcher.Constraint("Symmetric", 18, 2, 42, 2, -1, 1),
    Sketcher.Constraint("Symmetric", 20, 2, 44, 2, -1, 1),
    Sketcher.Constraint("Symmetric", 22, 2, 46, 2, -1, 1),
    Sketcher.Constraint("Symmetric", 0, 2, 3, 2, -2),
    Sketcher.Constraint("Symmetric", 6, 2, 9, 2, -2),
    Sketcher.Constraint("Symmetric", 21, 2, 36, 2, -2),
    Sketcher.Constraint("Symmetric", 19, 2, 38, 2, -2),
    Sketcher.Constraint("Horizontal", 12, 2, 15, 2),
    Sketcher.Constraint("Horizontal", 18, 2, 21, 2),
    Sketcher.Constraint("Vertical", 3, 2, 6, 2),
    Sketcher.Constraint("Vertical", 11, 2, 25, 2),
    Sketcher.Constraint("Equal", 10, 12),
    Sketcher.Constraint("Equal", 8, 14),
    Sketcher.Constraint("Equal", 12, 16),
    Sketcher.Constraint("Equal", 46, 1),
    Sketcher.Constraint("Equal", 44, 5),
    Sketcher.Constraint("Equal", 3, 7),
    Sketcher.Constraint("Equal", 9, 13),
    Sketcher.Constraint("Equal", 11, 17),
    Sketcher.Constraint("DistanceX", 2, 2, 2, 1, Q("0.4 mm")),
    Sketcher.Constraint("DistanceX", 8, 2, 12, 2, Q("9 mm")),
    Sketcher.Constraint("DistanceY", 12, 2, 11, 2, Q("9 mm")),
    Sketcher.Constraint("DistanceX", 0, 2, 0, 1, Q("1.286607 mm")),
])
pocket5 = doc.addObject("PartDesign::Pocket", "Pocket004")
body.addObject(pocket5)
pocket5.Profile = sketch12
pocket5.Length = 1

doc.recompute()
